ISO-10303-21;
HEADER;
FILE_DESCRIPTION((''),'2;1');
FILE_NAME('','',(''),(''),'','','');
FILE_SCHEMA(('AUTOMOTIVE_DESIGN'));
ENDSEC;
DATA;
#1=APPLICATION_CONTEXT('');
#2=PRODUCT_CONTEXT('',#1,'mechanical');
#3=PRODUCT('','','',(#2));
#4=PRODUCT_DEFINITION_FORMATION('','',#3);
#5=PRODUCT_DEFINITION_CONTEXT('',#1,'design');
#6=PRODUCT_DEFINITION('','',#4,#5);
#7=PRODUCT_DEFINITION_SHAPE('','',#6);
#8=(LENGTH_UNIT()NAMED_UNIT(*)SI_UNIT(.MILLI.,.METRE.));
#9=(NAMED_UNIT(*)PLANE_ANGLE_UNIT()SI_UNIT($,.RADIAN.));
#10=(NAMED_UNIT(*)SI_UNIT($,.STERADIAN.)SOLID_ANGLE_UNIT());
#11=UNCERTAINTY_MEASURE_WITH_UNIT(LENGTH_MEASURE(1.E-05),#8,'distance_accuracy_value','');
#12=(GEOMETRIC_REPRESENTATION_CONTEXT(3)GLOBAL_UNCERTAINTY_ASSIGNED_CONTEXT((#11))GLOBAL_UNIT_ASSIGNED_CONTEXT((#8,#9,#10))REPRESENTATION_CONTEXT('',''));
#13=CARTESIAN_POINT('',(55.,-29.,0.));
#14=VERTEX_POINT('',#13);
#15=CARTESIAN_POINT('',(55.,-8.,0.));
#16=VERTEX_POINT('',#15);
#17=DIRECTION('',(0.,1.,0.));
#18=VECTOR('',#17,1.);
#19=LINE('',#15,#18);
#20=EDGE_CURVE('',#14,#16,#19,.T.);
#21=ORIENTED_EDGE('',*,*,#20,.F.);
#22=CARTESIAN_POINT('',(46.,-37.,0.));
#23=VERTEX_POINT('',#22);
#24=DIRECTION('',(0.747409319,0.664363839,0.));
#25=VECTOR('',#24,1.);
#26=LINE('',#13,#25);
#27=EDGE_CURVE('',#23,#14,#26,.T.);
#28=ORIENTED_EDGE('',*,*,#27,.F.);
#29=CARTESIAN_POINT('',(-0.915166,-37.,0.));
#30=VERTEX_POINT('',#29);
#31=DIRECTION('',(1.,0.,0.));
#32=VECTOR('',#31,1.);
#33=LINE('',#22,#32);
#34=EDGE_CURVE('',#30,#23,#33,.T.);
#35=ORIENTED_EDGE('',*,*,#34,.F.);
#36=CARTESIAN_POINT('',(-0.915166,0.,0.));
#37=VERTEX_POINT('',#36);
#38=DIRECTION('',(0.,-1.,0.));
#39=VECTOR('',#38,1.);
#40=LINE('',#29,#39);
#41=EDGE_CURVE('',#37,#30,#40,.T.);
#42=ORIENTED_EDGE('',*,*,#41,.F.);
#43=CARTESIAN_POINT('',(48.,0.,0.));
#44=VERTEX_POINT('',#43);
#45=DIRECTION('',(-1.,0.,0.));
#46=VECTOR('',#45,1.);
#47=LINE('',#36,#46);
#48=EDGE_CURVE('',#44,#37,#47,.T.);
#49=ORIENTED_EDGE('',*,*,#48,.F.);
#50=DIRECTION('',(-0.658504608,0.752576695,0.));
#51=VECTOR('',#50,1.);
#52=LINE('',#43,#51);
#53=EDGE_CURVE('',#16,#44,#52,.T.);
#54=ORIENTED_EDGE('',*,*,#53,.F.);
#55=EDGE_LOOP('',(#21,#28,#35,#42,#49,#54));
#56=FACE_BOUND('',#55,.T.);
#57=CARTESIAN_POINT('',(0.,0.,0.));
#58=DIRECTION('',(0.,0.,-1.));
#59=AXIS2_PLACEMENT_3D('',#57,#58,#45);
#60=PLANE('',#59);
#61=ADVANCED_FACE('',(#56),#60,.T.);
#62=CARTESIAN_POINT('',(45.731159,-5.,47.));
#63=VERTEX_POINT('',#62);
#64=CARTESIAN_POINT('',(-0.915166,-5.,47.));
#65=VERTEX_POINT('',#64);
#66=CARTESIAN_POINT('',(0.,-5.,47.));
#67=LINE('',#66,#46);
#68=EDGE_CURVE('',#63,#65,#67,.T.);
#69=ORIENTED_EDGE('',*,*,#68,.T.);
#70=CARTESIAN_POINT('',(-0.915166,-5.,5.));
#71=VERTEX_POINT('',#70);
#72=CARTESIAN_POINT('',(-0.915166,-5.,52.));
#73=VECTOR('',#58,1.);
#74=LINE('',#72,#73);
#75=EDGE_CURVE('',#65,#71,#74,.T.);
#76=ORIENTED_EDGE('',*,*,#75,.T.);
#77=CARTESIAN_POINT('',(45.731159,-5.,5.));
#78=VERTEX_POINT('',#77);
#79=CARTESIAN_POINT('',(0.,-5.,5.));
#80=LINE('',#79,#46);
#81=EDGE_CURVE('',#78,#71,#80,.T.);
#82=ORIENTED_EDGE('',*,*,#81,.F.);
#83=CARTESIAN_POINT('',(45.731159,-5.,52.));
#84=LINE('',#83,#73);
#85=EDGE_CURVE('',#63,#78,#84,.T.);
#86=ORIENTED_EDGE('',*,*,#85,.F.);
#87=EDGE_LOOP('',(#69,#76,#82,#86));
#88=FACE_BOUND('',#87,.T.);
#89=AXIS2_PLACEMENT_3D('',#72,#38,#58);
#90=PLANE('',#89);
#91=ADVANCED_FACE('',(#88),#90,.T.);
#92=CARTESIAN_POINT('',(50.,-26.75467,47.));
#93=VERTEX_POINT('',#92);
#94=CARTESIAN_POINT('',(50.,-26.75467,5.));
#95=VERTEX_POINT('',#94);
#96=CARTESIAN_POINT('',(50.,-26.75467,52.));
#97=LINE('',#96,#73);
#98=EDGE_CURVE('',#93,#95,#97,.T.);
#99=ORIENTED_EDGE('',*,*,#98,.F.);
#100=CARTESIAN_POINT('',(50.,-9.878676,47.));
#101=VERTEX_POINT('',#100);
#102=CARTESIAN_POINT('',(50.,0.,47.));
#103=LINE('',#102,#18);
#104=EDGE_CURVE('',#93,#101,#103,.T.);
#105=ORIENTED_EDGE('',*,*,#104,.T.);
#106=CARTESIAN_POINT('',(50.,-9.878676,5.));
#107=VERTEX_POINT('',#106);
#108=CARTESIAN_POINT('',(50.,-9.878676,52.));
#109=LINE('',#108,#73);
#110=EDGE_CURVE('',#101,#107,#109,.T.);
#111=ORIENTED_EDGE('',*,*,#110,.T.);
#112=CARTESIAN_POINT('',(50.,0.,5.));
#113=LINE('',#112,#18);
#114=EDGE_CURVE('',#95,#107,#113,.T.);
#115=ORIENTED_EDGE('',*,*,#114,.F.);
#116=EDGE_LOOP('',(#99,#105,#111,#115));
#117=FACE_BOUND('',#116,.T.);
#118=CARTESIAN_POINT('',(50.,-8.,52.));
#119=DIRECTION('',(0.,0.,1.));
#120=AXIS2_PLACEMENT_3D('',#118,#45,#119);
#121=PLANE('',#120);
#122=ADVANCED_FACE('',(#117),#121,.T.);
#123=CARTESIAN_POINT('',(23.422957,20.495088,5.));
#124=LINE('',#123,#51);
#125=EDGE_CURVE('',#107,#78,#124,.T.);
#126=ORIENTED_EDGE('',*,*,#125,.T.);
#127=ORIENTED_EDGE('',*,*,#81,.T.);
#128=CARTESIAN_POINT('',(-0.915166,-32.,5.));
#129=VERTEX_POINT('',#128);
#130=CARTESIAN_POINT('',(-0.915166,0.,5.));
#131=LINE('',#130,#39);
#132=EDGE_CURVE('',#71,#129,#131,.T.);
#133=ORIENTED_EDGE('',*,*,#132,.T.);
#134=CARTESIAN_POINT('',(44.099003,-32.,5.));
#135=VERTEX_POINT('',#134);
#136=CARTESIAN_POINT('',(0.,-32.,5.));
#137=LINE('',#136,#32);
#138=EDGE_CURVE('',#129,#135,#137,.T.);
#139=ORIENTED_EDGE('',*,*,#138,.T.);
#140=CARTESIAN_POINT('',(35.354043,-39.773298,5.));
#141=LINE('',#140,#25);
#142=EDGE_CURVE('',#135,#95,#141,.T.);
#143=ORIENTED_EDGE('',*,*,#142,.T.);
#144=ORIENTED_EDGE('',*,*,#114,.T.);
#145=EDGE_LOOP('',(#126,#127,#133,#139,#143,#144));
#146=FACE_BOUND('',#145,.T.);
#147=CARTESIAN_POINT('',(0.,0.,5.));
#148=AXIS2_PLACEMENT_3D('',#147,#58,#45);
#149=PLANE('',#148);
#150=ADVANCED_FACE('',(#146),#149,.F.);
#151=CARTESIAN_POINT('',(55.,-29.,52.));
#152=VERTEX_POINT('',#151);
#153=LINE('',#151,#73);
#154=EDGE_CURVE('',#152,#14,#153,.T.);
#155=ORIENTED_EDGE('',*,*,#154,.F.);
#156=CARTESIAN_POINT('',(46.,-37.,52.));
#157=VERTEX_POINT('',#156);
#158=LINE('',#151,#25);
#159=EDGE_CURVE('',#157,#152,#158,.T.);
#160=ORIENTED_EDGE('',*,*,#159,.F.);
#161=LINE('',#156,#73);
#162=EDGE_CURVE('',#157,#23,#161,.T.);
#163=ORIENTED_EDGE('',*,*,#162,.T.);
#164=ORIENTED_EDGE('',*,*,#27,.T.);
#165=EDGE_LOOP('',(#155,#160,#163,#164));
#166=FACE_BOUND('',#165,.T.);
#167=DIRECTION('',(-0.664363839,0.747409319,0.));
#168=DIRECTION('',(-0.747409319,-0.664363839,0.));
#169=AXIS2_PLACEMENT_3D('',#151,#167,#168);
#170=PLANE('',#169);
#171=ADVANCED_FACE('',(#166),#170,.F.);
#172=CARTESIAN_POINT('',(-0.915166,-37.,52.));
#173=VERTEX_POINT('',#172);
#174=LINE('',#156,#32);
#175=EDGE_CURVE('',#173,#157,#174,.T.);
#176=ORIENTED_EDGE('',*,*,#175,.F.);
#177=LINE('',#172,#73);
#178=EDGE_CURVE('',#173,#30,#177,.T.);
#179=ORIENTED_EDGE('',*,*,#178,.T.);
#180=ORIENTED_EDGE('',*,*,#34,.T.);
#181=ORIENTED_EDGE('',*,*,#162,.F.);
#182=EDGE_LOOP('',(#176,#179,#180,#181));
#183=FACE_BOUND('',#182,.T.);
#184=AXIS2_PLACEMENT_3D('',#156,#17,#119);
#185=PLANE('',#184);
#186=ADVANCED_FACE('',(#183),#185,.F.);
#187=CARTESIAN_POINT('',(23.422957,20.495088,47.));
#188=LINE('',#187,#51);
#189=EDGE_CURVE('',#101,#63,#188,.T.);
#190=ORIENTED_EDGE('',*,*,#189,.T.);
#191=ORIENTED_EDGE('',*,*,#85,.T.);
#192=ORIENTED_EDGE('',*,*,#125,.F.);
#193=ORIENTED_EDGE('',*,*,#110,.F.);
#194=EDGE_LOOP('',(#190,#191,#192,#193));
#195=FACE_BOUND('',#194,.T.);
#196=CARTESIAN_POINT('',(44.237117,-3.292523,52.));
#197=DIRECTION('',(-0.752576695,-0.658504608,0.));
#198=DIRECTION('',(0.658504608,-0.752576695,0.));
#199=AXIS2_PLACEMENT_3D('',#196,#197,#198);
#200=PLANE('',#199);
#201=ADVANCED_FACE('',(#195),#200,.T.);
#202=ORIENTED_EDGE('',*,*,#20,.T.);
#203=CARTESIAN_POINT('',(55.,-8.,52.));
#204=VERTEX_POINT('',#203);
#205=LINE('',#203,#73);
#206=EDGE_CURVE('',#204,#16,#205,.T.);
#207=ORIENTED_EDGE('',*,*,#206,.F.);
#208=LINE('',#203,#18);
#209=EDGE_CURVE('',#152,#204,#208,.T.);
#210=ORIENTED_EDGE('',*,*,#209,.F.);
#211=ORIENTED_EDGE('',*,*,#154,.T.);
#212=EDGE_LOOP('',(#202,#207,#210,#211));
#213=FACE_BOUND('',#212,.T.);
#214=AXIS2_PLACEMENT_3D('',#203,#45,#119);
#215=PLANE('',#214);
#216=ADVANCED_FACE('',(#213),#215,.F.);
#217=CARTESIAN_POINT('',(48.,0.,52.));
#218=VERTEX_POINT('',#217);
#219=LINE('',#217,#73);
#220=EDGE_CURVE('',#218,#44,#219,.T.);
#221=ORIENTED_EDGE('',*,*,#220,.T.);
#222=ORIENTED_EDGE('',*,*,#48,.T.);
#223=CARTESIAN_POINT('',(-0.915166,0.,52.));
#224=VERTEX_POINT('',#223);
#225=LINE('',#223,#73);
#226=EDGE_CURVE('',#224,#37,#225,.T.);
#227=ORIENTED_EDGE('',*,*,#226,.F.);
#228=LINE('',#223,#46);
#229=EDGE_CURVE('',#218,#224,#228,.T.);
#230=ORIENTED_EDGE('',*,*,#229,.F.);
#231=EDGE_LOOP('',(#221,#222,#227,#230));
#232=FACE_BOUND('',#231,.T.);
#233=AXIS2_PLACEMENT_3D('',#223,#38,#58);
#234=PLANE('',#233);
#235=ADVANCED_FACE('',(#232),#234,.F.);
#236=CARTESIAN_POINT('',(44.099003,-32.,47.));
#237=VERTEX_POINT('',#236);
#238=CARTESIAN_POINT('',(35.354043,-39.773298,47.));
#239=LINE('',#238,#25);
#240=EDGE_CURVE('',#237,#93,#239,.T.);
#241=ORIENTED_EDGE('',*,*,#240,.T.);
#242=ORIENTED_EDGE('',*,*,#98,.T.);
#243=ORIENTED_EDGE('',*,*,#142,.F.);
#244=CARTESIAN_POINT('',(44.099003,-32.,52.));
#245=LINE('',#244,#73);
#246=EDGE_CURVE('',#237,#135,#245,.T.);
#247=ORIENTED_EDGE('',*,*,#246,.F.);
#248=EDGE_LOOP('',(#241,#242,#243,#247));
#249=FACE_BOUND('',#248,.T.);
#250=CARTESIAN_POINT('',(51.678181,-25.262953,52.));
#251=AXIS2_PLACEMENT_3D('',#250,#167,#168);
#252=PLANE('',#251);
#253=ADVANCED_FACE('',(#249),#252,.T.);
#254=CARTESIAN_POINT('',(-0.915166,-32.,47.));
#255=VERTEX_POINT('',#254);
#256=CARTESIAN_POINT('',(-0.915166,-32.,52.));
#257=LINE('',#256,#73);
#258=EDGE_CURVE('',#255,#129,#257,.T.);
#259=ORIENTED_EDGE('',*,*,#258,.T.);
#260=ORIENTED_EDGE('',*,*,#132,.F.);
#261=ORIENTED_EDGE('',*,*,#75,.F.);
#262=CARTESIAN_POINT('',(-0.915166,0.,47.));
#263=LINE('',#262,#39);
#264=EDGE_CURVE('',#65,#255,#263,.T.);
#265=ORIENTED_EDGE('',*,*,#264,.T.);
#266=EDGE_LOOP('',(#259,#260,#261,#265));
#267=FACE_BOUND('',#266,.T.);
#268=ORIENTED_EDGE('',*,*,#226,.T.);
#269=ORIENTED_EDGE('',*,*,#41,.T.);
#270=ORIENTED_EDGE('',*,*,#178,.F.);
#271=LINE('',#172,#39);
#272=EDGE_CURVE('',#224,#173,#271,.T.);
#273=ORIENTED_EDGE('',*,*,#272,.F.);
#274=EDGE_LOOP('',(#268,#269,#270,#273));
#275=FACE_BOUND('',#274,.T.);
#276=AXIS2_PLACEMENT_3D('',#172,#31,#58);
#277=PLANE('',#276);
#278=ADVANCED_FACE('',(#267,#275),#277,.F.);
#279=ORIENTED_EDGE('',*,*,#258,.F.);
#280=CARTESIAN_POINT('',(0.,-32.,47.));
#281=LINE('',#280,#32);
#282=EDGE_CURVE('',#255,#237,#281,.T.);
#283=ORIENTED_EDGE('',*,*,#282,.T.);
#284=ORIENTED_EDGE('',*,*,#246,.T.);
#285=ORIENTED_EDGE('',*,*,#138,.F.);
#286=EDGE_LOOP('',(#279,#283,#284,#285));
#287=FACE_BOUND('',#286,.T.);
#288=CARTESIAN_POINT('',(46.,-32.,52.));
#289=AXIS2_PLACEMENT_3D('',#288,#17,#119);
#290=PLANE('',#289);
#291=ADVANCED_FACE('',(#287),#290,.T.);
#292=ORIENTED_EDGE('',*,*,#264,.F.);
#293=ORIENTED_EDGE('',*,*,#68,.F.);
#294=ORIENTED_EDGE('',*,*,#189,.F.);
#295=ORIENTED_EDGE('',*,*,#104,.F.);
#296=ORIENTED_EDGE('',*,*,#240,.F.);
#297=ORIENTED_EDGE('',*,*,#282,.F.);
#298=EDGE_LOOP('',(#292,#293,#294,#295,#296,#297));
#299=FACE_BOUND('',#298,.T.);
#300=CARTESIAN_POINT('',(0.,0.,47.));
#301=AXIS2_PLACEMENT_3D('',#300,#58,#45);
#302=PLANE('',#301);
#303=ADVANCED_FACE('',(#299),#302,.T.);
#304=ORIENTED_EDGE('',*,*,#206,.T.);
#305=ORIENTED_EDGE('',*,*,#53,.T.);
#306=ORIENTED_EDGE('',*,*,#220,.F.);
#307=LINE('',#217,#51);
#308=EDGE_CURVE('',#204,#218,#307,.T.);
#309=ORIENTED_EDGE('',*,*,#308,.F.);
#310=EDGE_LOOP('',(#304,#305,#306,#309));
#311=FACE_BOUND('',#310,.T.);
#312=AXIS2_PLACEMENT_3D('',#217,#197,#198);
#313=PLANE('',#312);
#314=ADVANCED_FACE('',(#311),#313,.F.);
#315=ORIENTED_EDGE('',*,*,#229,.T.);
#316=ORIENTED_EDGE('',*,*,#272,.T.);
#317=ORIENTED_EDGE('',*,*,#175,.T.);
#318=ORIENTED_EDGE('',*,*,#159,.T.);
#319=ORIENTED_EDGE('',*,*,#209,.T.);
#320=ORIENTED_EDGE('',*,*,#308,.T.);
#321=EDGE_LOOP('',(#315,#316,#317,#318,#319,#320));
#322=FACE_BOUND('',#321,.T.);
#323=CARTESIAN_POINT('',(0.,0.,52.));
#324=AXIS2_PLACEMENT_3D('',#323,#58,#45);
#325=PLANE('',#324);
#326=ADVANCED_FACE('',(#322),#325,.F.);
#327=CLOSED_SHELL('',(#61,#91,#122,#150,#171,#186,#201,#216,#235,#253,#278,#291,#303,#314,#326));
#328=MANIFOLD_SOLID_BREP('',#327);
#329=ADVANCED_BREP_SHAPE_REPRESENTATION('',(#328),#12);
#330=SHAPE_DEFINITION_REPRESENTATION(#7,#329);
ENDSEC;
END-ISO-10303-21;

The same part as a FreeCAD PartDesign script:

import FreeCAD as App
import Part
import Sketcher

V = App.Vector
Q = App.Units.Quantity


def faces_at(feature, points):
    """Names of the faces that lie closest to the given points."""
    faces = feature.Shape.Faces
    near = lambda p: min(range(len(faces)), key=lambda i: faces[i].distToShape(Part.Vertex(*p))[0])
    return sorted({f"Face{near(p) + 1}" for p in points})


def add_polygon(sketch, points):
    """Adds a closed chain of lines whose ends are joined by coincident constraints."""
    first, n = sketch.GeometryCount, len(points)
    for a, b in zip(points, points[1:] + points[:1]):
        sketch.addGeometry(Part.LineSegment(App.Vector(*a, 0), App.Vector(*b, 0)), False)
    for i in range(n):
        sketch.addConstraint(Sketcher.Constraint("Coincident", first + i, 2, first + (i + 1) % n, 1))

doc = App.newDocument("Part")
body = doc.addObject("PartDesign::Body", "Body")

sketch1 = doc.addObject("Sketcher::SketchObject", "Sketch")
body.addObject(sketch1)
sketch1.AttachmentSupport = (doc.XY_Plane, [""])
sketch1.MapMode = "FlatFace"
add_polygon(sketch1, [(48, 0), (-0.915166, 0), (-0.915166, -37), (46, -37), (55, -29), (55, -8)])
sketch1.addConstraint([
    Sketcher.Constraint("Horizontal", 0),
    Sketcher.Constraint("Vertical", 1),
    Sketcher.Constraint("Horizontal", 2),
    Sketcher.Constraint("Vertical", 4),
    Sketcher.Constraint("PointOnObject", 0, 2, -1),
    Sketcher.Constraint("DistanceY", 1, 2, 1, 1, Q("37 mm")),
    Sketcher.Constraint("DistanceY", 4, 1, 4, 2, Q("21 mm")),
    Sketcher.Constraint("DistanceX", -1, 1, 2, 2, Q("46 mm")),
    Sketcher.Constraint("DistanceX", -1, 1, 3, 2, Q("55 mm")),
    Sketcher.Constraint("DistanceY", 3, 2, -1, 1, Q("29 mm")),
    Sketcher.Constraint("DistanceX", -1, 1, 5, 2, Q("48 mm")),
    Sketcher.Constraint("DistanceX", 0, 2, 0, 1, Q("48.915166 mm")),
])
pad1 = doc.addObject("PartDesign::Pad", "Pad")
body.addObject(pad1)
pad1.Profile = sketch1
pad1.Length = 52
doc.recompute()

thickness = doc.addObject("PartDesign::Thickness", "Thickness")
body.addObject(thickness)
thickness.Base = (pad1, faces_at(pad1, [(-0.915, -18.5, 26)]))
thickness.Value = 5
thickness.Reversed = True
thickness.Join = "Intersection"

doc.recompute()
